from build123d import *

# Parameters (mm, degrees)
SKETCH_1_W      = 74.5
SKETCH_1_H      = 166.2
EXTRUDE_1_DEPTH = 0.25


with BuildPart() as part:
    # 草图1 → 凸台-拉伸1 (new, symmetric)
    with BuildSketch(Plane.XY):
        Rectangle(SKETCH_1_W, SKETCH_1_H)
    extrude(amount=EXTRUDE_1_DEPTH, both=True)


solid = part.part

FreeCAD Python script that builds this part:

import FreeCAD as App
import Part
import Sketcher

V = App.Vector


def add_polygon(sketch, points):
    """Adds a closed chain of lines whose ends are joined by coincident constraints."""
    first, n = sketch.GeometryCount, len(points)
    for a, b in zip(points, points[1:] + points[:1]):
        sketch.addGeometry(Part.LineSegment(App.Vector(*a, 0), App.Vector(*b, 0)), False)
    for i in range(n):
        sketch.addConstraint(Sketcher.Constraint("Coincident", first + i, 2, first + (i + 1) % n, 1))

doc = App.newDocument("Part")
body = doc.addObject("PartDesign::Body", "Body")

sketch1 = body.newObject("Sketcher::SketchObject", "Sketch")
sketch1.AttachmentSupport = (doc.getObject("XY_Plane"), [""])
sketch1.MapMode = "FlatFace"
add_polygon(sketch1, [(-37.25, 83.1), (-37.25, -83.1), (37.25, -83.1), (37.25, 83.1)])
sketch1.addConstraint([
    Sketcher.Constraint("Vertical", 0),
    Sketcher.Constraint("Horizontal", 1),
    Sketcher.Constraint("Vertical", 2),
    Sketcher.Constraint("Horizontal", 3),
    Sketcher.Constraint("Symmetric", 0, 2, 2, 2, -1, 1),
    Sketcher.Constraint("DistanceX", 1, 1, 1, 2, 74.5),
    Sketcher.Constraint("DistanceY", 0, 2, 0, 1, 166.2),
])
pad1 = body.newObject("PartDesign::Pad", "Pad")
pad1.Profile = sketch1
pad1.Length = 0.5
pad1.Midplane = True

doc.recompute()
